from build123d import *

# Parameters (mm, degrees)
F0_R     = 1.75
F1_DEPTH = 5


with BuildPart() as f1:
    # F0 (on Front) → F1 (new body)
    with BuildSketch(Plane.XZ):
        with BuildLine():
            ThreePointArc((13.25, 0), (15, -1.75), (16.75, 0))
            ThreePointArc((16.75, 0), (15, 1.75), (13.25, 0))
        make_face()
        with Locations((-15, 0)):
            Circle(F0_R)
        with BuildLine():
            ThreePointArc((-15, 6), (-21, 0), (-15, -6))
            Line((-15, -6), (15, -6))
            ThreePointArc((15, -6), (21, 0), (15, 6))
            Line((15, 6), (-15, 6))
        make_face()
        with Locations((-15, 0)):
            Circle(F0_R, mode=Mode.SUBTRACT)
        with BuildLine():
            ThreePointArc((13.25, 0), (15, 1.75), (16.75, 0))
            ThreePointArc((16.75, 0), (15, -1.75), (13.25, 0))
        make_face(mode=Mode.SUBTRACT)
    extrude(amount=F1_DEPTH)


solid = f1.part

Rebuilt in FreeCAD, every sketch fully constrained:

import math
import FreeCAD as App
import Part
import Sketcher

V = App.Vector

doc = App.newDocument("Part")
body = doc.addObject("PartDesign::Body", "Body")

sketch1 = body.newObject("Sketcher::SketchObject", "Sketch")
sketch1.AttachmentSupport = (doc.getObject("XZ_Plane"), [""])
sketch1.MapMode = "FlatFace"
sketch1.addGeometry([
    Part.ArcOfCircle(Part.Circle(V(-15, 0, 0), V(0, 0, 1), 6), math.radians(90), math.radians(270)),
    Part.LineSegment(V(-15, -6, 0), V(15, -6, 0)),
    Part.ArcOfCircle(Part.Circle(V(15, 0, 0), V(0, 0, 1), 6), math.radians(-90), math.radians(90)),
    Part.LineSegment(V(15, 6, 0), V(-15, 6, 0)),
    Part.Circle(V(-15, 0, 0), V(0, 0, 1), 1.75),
    Part.Circle(V(15, 0, 0), V(0, 0, 1), 1.75),
], False)
sketch1.addConstraint([
    Sketcher.Constraint("Tangent", 0, 2, 1, 1),
    Sketcher.Constraint("Tangent", 1, 2, 2, 1),
    Sketcher.Constraint("Tangent", 2, 2, 3, 1),
    Sketcher.Constraint("Tangent", 3, 2, 0, 1),
    Sketcher.Constraint("Horizontal", 1),
    Sketcher.Constraint("Horizontal", 3),
    Sketcher.Constraint("Coincident", 4, 3, 0, 3),
    Sketcher.Constraint("Coincident", 5, 3, 2, 3),
    Sketcher.Constraint("Equal", 4, 5),
    Sketcher.Constraint("Symmetric", 0, 3, 2, 3, -1, 1),
    Sketcher.Constraint("Radius", 0, 6.0),
    Sketcher.Constraint("Diameter", 4, 3.5),
    Sketcher.Constraint("DistanceX", 1, 1, 1, 2, 30.0),
])
pad1 = body.newObject("PartDesign::Pad", "Pad")
pad1.Profile = sketch1
pad1.Length = 5

doc.recompute()
